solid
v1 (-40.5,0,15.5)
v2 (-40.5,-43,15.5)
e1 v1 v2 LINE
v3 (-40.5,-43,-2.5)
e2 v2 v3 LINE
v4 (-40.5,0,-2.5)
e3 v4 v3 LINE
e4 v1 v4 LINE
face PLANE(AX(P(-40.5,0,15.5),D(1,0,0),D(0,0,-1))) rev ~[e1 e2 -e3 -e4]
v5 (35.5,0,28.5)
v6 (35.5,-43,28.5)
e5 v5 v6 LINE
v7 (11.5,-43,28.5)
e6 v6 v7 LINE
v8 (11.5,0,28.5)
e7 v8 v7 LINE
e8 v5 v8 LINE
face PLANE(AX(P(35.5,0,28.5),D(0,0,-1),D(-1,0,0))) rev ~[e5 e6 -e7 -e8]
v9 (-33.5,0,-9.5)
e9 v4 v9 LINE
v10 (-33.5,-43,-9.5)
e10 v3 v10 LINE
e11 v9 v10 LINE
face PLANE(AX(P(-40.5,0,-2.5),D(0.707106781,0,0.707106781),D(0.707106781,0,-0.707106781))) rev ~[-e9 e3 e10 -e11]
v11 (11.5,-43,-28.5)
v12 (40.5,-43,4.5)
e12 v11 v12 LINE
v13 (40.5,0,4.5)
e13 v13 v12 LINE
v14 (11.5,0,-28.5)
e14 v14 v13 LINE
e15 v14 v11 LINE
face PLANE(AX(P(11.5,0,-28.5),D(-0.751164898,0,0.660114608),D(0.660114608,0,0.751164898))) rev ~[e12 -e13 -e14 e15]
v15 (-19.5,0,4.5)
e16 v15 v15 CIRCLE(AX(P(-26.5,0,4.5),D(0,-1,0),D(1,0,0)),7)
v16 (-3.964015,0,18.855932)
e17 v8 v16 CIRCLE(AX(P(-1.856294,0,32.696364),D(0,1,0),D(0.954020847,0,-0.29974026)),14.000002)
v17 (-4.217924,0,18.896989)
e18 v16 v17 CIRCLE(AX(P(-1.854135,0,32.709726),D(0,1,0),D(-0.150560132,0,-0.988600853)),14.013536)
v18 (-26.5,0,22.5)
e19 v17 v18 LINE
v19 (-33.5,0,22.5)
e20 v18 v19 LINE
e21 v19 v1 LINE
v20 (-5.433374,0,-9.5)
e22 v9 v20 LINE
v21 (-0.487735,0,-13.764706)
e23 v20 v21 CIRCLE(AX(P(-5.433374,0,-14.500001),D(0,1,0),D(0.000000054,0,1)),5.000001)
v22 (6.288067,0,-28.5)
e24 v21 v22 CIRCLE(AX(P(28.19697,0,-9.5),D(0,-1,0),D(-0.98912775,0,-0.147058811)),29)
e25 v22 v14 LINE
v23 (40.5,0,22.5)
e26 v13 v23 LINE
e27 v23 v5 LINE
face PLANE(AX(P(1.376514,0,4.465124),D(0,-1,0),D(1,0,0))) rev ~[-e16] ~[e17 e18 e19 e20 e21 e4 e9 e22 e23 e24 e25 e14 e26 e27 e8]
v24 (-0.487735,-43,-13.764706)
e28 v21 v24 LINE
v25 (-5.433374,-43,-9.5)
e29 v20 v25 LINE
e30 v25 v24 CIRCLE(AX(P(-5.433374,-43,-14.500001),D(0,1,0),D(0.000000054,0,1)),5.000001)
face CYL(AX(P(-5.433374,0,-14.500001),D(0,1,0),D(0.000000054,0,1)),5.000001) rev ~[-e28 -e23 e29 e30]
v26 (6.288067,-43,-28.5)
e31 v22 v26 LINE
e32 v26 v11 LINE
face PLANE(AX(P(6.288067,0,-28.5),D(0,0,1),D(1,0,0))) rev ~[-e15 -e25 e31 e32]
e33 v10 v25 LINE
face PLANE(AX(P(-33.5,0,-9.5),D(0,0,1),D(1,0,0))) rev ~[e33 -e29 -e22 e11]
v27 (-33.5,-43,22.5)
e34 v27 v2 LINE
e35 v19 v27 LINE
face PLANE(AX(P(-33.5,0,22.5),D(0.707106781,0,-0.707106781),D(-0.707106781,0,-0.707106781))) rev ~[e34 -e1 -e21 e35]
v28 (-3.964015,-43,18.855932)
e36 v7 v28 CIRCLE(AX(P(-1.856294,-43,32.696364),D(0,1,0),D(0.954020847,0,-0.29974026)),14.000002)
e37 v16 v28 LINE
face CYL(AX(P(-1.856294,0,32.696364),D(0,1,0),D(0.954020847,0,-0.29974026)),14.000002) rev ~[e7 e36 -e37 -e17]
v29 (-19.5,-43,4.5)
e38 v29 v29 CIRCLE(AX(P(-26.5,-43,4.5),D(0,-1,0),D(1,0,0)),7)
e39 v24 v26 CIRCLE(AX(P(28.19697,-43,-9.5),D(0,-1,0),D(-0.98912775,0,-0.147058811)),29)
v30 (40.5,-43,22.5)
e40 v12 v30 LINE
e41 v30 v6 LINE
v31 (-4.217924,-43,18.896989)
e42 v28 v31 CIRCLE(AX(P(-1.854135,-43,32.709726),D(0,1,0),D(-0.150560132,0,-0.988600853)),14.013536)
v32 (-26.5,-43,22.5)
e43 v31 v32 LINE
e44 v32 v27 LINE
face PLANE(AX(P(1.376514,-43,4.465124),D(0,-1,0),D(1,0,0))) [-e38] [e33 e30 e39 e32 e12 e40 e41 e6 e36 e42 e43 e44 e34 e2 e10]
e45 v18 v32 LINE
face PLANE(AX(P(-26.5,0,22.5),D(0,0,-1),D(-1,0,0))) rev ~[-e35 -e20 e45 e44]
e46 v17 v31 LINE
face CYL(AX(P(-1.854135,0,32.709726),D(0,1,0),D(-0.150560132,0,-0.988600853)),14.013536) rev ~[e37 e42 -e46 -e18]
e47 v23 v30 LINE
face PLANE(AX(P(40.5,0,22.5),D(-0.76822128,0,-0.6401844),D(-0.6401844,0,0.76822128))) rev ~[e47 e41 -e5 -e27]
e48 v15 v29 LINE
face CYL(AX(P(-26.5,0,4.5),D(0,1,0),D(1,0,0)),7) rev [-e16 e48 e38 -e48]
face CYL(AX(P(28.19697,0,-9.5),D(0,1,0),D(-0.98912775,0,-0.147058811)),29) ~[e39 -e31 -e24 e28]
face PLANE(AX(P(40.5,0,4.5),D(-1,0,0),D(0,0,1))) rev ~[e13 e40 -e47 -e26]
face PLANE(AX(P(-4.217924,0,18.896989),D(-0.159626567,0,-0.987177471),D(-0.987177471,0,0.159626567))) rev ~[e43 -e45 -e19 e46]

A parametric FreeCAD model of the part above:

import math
import FreeCAD as App
import Part
import Sketcher
from FreeCAD import Vector

doc = App.newDocument("Part")
body = doc.addObject("PartDesign::Body", "Body")

sketch1 = body.newObject("Sketcher::SketchObject", "Sketch")
sketch1.AttachmentSupport = (doc.getObject("XZ_Plane"), [""])
sketch1.MapMode = "FlatFace"
sketch1.addGeometry(Part.LineSegment(Vector(35.5, 28.5, 0), Vector(11.5, 28.5, 0)), False)
sketch1.addGeometry(Part.ArcOfCircle(Part.Circle(Vector(-1.856294, 32.696364, 0), Vector(0, 0, 1), 14.000002), math.radians(-98.658888), math.radians(-17.442003)), False)
sketch1.addGeometry(Part.ArcOfCircle(Part.Circle(Vector(-1.854135, 32.709726, 0), Vector(0, 0, 1), 14.013536), math.radians(-99.71102), math.radians(-98.659388)), False)
sketch1.addGeometry(Part.LineSegment(Vector(-4.217924, 18.896989, 0), Vector(-26.5, 22.5, 0)), False)
sketch1.addGeometry(Part.LineSegment(Vector(-26.5, 22.5, 0), Vector(-33.5, 22.5, 0)), False)
sketch1.addGeometry(Part.LineSegment(Vector(-33.5, 22.5, 0), Vector(-40.5, 15.5, 0)), False)
sketch1.addGeometry(Part.LineSegment(Vector(-40.5, 15.5, 0), Vector(-40.5, -2.5, 0)), False)
sketch1.addGeometry(Part.LineSegment(Vector(-40.5, -2.5, 0), Vector(-33.5, -9.5, 0)), False)
sketch1.addGeometry(Part.LineSegment(Vector(-33.5, -9.5, 0), Vector(-5.433374, -9.5, 0)), False)
sketch1.addGeometry(Part.ArcOfCircle(Part.Circle(Vector(-5.433374, -14.500001, 0), Vector(0, 0, 1), 5.000001), math.radians(8.456524), math.radians(89.999997)), False)
sketch1.addGeometry(Part.ArcOfCircle(Part.Circle(Vector(28.19697, -9.5, 0), Vector(0, 0, 1), 29), math.radians(-171.543481), math.radians(-139.067277)), False)
sketch1.addGeometry(Part.LineSegment(Vector(6.288067, -28.5, 0), Vector(11.5, -28.5, 0)), False)
sketch1.addGeometry(Part.LineSegment(Vector(11.5, -28.5, 0), Vector(40.5, 4.5, 0)), False)
sketch1.addGeometry(Part.LineSegment(Vector(40.5, 4.5, 0), Vector(40.5, 22.5, 0)), False)
sketch1.addGeometry(Part.LineSegment(Vector(40.5, 22.5, 0), Vector(35.5, 28.5, 0)), False)
sketch1.addGeometry(Part.Circle(Vector(-26.5, 4.5, 0), Vector(0, 0, 1), 7), False)
sketch1.addConstraint(Sketcher.Constraint("Coincident", 0, 2, 1, 2))
sketch1.addConstraint(Sketcher.Constraint("Coincident", 1, 1, 2, 2))
sketch1.addConstraint(Sketcher.Constraint("Coincident", 2, 1, 3, 1))
sketch1.addConstraint(Sketcher.Constraint("Coincident", 3, 2, 4, 1))
sketch1.addConstraint(Sketcher.Constraint("Coincident", 4, 2, 5, 1))
sketch1.addConstraint(Sketcher.Constraint("Coincident", 5, 2, 6, 1))
sketch1.addConstraint(Sketcher.Constraint("Coincident", 6, 2, 7, 1))
sketch1.addConstraint(Sketcher.Constraint("Coincident", 7, 2, 8, 1))
sketch1.addConstraint(Sketcher.Constraint("Tangent", 8, 2, 9, 2))
sketch1.addConstraint(Sketcher.Constraint("Tangent", 9, 1, 10, 1))
sketch1.addConstraint(Sketcher.Constraint("Coincident", 10, 2, 11, 1))
sketch1.addConstraint(Sketcher.Constraint("Coincident", 11, 2, 12, 1))
sketch1.addConstraint(Sketcher.Constraint("Coincident", 12, 2, 13, 1))
sketch1.addConstraint(Sketcher.Constraint("Coincident", 13, 2, 14, 1))
sketch1.addConstraint(Sketcher.Constraint("Coincident", 14, 2, 0, 1))
sketch1.addConstraint(Sketcher.Constraint("Horizontal", 0))
sketch1.addConstraint(Sketcher.Constraint("Horizontal", 4))
sketch1.addConstraint(Sketcher.Constraint("Vertical", 6))
sketch1.addConstraint(Sketcher.Constraint("Horizontal", 8))
sketch1.addConstraint(Sketcher.Constraint("Horizontal", 11))
sketch1.addConstraint(Sketcher.Constraint("Vertical", 13))
sketch1.addConstraint(Sketcher.Constraint("Symmetric", 0, 2, 11, 2, -1))
sketch1.addConstraint(Sketcher.Constraint("Perpendicular", 5, 7))
sketch1.addConstraint(Sketcher.Constraint("Horizontal", 10, 3, 7, 2))
sketch1.addConstraint(Sketcher.Constraint("Horizontal", 15, 3, 12, 2))
sketch1.addConstraint(Sketcher.Constraint("Horizontal", 4, 2, 13, 2))
sketch1.addConstraint(Sketcher.Constraint("Vertical", 15, 3, 3, 2))
sketch1.addConstraint(Sketcher.Constraint("Vertical", 4, 2, 7, 2))
sketch1.addConstraint(Sketcher.Constraint("Equal", 6, 13))
sketch1.addConstraint(Sketcher.Constraint("Equal", 5, 7))
sketch1.addConstraint(Sketcher.Constraint("Diameter", 15, 14.0))
sketch1.addConstraint(Sketcher.Constraint("Radius", 1, 14.000002))
sketch1.addConstraint(Sketcher.Constraint("Radius", 9, 5.000001))
sketch1.addConstraint(Sketcher.Constraint("Radius", 10, 29.0))
sketch1.addConstraint(Sketcher.Constraint("DistanceX", 0, 2, 0, 1, 24.0))
sketch1.addConstraint(Sketcher.Constraint("DistanceX", 4, 2, 4, 1, 7.0))
sketch1.addConstraint(Sketcher.Constraint("DistanceY", 6, 2, 6, 1, 18.0))
sketch1.addConstraint(Sketcher.Constraint("DistanceY", 9, 3, 15, 3, 19.000001))
sketch1.addConstraint(Sketcher.Constraint("DistanceY", 10, 3, 0, 2, 38.0))
sketch1.addConstraint(Sketcher.Constraint("DistanceX", 15, 3, 0, 2, 38.0))
sketch1.addConstraint(Sketcher.Constraint("DistanceY", 10, 2, 9, 3, 13.999999))
sketch1.addConstraint(Sketcher.Constraint("DistanceX", 0, 2, 12, 2, 29.0))
sketch1.addConstraint(Sketcher.Constraint("DistanceX", 15, 3, -1, 1, 26.5))
sketch1.addConstraint(Sketcher.Constraint("Radius", 2, 14.013536))
sketch1.addConstraint(Sketcher.Constraint("Distance", 3, 22.5715))
sketch1.addConstraint(Sketcher.Constraint("DistanceX", 8, 1, 8, 2, 28.066626))
sketch1.addConstraint(Sketcher.Constraint("DistanceY", -1, 1, 2, 1, 18.896989))
sketch1.addConstraint(Sketcher.Constraint("DistanceX", 1, 3, 2, 3, 0.002159))
sketch1.addConstraint(Sketcher.Constraint("DistanceX", 1, 1, 1, 3, 2.107721))
pad1 = body.newObject("PartDesign::Pad", "Pad")
pad1.Profile = sketch1
pad1.Length = 43

doc.recompute()
